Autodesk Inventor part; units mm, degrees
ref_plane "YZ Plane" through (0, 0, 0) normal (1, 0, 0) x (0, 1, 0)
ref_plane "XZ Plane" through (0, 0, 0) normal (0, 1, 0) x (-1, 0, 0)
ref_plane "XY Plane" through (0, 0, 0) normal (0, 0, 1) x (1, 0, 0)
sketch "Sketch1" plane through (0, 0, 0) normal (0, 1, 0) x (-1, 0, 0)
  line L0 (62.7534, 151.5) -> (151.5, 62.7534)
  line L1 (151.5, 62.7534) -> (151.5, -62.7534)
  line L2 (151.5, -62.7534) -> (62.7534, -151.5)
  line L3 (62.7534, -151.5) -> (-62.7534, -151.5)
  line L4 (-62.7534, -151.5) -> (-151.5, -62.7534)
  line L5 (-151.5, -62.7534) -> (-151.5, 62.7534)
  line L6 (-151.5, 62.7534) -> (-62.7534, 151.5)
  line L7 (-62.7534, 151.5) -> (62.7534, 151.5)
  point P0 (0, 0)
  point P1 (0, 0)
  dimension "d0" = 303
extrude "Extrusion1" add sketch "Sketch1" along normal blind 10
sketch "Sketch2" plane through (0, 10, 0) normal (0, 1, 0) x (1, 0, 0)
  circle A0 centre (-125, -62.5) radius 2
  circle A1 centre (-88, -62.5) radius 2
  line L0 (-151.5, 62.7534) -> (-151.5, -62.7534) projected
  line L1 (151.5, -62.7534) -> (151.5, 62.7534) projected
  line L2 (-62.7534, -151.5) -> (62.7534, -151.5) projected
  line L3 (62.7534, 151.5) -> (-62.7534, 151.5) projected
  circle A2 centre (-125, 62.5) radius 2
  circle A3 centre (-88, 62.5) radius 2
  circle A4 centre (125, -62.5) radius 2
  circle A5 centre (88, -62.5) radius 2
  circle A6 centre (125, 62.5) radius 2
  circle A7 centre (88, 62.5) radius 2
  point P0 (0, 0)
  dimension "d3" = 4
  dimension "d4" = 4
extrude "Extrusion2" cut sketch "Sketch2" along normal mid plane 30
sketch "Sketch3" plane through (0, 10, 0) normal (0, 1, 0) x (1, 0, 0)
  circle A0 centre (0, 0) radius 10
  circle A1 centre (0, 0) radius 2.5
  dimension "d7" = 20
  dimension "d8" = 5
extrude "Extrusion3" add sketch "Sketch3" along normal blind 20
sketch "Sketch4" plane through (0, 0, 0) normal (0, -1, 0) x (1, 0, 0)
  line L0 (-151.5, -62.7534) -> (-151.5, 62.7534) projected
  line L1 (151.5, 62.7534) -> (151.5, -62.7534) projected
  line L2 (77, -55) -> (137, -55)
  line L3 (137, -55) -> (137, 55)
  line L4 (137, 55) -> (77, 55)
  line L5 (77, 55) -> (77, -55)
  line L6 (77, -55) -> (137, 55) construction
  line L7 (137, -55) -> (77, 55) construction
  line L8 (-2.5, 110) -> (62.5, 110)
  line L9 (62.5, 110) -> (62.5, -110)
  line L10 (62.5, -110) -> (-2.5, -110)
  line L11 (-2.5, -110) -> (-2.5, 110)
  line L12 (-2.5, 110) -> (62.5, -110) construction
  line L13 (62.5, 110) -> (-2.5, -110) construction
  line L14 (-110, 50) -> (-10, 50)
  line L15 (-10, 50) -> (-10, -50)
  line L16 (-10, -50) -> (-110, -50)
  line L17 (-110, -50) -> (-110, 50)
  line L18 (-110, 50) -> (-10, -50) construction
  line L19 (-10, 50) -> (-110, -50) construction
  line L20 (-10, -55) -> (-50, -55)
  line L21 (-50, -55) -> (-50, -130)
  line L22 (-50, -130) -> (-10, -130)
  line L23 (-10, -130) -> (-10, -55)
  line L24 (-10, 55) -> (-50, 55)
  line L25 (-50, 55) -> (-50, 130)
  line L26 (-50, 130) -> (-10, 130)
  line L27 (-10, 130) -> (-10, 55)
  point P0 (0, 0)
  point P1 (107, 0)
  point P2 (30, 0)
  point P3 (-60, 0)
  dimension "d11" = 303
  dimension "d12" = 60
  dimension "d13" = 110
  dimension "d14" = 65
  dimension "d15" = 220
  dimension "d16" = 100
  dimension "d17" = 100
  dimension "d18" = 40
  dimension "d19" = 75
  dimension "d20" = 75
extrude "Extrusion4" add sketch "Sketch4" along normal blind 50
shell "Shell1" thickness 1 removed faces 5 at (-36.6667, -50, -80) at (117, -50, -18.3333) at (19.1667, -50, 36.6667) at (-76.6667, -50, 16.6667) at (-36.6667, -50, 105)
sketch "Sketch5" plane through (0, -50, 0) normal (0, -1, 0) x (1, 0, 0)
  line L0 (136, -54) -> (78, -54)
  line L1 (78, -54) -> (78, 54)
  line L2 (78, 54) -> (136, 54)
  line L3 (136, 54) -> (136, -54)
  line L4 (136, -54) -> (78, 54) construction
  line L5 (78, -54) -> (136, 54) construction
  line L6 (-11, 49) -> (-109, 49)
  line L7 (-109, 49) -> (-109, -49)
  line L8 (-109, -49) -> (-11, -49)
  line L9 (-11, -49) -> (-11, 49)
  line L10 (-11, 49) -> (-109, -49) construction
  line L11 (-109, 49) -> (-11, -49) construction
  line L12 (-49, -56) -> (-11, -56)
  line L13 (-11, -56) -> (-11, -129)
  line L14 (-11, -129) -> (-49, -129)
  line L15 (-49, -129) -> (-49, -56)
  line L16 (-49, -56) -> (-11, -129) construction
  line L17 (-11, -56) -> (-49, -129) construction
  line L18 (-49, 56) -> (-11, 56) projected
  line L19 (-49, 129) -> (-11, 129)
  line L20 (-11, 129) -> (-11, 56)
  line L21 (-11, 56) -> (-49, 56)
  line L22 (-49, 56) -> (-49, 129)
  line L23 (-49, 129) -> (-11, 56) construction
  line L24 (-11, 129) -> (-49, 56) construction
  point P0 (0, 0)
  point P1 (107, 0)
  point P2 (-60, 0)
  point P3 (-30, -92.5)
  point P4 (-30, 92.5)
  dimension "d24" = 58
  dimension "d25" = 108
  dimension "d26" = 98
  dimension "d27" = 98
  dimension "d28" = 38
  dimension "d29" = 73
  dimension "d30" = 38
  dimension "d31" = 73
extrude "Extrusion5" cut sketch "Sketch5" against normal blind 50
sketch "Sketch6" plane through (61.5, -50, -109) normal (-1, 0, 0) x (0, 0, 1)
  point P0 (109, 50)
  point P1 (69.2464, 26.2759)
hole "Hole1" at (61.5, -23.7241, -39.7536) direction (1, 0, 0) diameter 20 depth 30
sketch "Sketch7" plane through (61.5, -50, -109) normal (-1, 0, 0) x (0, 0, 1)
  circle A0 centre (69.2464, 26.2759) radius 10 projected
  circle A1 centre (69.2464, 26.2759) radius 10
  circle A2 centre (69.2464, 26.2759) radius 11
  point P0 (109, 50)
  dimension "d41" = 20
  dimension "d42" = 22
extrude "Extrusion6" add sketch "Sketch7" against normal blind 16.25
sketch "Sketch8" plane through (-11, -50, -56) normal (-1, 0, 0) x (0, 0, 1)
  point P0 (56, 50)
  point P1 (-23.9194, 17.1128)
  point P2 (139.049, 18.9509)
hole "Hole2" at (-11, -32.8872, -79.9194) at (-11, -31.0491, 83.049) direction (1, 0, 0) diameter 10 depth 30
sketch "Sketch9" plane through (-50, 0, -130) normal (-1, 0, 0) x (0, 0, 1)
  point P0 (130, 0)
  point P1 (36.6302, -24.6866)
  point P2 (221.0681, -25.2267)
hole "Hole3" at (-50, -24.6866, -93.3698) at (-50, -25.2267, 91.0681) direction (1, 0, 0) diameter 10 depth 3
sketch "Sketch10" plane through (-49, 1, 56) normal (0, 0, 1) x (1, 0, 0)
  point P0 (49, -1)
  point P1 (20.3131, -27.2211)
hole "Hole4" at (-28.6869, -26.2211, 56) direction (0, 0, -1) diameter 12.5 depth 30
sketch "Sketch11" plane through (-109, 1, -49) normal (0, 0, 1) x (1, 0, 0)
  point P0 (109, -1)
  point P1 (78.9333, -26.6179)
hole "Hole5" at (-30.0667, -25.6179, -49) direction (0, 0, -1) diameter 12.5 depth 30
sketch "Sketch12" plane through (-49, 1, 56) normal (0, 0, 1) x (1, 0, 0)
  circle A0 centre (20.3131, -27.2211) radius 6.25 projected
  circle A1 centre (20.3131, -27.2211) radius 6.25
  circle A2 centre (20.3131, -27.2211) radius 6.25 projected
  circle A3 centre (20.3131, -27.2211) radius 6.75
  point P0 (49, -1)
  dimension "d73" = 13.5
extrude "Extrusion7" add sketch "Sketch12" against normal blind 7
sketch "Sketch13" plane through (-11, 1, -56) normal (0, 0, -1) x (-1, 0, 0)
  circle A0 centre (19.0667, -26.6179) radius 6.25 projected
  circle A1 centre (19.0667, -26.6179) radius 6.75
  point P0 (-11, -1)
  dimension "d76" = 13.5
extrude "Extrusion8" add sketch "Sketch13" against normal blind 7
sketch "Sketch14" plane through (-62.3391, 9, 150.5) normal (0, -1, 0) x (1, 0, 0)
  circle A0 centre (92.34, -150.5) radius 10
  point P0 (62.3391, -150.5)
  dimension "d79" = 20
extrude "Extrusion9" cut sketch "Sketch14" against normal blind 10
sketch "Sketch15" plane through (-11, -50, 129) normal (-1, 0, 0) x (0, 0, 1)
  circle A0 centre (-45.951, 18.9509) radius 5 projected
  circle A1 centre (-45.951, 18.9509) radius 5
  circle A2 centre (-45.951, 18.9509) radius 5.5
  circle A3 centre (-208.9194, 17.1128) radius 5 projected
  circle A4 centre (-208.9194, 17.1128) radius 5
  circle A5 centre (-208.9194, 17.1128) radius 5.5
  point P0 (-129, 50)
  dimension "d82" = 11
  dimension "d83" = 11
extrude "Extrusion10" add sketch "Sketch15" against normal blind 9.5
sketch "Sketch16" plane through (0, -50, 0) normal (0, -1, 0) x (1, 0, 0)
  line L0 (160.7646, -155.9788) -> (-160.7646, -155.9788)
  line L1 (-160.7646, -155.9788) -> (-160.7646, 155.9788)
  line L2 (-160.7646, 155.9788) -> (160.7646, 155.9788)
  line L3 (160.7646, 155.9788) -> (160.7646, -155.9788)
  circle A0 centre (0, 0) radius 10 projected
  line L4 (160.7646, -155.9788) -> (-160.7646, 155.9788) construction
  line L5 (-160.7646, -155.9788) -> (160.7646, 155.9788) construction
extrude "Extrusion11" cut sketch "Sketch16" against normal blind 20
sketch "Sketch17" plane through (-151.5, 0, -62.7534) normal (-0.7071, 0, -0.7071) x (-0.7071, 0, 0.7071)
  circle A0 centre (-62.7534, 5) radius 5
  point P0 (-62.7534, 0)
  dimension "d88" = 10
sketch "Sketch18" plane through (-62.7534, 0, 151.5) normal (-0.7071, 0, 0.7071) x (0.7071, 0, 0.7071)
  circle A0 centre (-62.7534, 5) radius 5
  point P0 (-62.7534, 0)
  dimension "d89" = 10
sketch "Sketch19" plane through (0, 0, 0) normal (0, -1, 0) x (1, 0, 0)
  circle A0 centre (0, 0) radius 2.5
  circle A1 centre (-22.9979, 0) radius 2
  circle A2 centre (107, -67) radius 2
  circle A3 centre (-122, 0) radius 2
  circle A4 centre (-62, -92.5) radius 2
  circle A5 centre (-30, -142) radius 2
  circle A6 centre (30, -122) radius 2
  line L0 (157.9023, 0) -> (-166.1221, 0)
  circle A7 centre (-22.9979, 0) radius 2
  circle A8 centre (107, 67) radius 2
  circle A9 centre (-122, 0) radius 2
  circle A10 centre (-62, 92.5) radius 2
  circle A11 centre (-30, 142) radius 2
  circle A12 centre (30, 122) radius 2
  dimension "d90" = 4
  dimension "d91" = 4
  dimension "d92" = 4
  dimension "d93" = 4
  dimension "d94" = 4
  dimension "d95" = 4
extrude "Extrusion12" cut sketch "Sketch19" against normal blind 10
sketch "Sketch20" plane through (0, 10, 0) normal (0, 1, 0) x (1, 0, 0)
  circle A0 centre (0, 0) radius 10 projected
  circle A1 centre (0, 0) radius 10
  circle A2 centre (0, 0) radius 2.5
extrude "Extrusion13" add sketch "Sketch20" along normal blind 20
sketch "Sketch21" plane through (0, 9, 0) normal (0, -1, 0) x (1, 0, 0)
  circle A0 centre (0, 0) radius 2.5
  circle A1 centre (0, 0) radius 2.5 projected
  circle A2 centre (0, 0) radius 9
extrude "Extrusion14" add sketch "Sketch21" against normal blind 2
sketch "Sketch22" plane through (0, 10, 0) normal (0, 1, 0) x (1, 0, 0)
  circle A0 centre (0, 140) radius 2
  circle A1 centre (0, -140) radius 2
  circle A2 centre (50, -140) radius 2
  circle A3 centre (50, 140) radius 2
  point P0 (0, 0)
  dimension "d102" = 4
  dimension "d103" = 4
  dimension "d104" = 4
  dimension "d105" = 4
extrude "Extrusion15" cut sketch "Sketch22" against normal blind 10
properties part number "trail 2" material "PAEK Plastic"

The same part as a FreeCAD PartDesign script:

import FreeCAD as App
import Part
import Sketcher

V = App.Vector
Q = App.Units.Quantity


def faces_at(feature, points):
    """Names of the faces that lie closest to the given points."""
    faces = feature.Shape.Faces
    near = lambda p: min(range(len(faces)), key=lambda i: faces[i].distToShape(Part.Vertex(*p))[0])
    return sorted({f"Face{near(p) + 1}" for p in points})


def add_polygon(sketch, points):
    """Adds a closed chain of lines whose ends are joined by coincident constraints."""
    first, n = sketch.GeometryCount, len(points)
    for a, b in zip(points, points[1:] + points[:1]):
        sketch.addGeometry(Part.LineSegment(App.Vector(*a, 0), App.Vector(*b, 0)), False)
    for i in range(n):
        sketch.addConstraint(Sketcher.Constraint("Coincident", first + i, 2, first + (i + 1) % n, 1))

doc = App.newDocument("Part")
body = doc.addObject("PartDesign::Body", "Body")

sketch1 = body.newObject("Sketcher::SketchObject", "Sketch")
sketch1.AttachmentSupport = (doc.getObject("XZ_Plane"), [""])
sketch1.MapMode = "FlatFace"
add_polygon(sketch1, [(-151.5, 62.7534), (-62.7534, 151.5), (62.7534, 151.5), (151.5, 62.7534), (151.5, -62.7534), (62.7534, -151.5), (-62.7534, -151.5), (-151.5, -62.7534)])
sketch1.addConstraint(Sketcher.Constraint("Horizontal", 1))
sketch1.addConstraint(Sketcher.Constraint("Vertical", 3))
sketch1.addConstraint(Sketcher.Constraint("Horizontal", 5))
sketch1.addConstraint(Sketcher.Constraint("Vertical", 7))
sketch1.addConstraint(Sketcher.Constraint("Symmetric", 0, 2, 4, 2, -1, 1))
sketch1.addConstraint(Sketcher.Constraint("Symmetric", 2, 2, 6, 2, -1, 1))
sketch1.addConstraint(Sketcher.Constraint("Perpendicular", 0, 2))
sketch1.addConstraint(Sketcher.Constraint("Perpendicular", 2, 4))
sketch1.addConstraint(Sketcher.Constraint("Perpendicular", 4, 6))
sketch1.addConstraint(Sketcher.Constraint("Horizontal", 3, 2, 6, 2))
sketch1.addConstraint(Sketcher.Constraint("Vertical", 1, 2, 4, 2))
sketch1.addConstraint(Sketcher.Constraint("Equal", 5, 3))
sketch1.addConstraint(Sketcher.Constraint("DistanceY", 4, 2, 1, 2, Q("303 mm")))
sketch1.addConstraint(Sketcher.Constraint("DistanceX", 1, 1, 1, 2, Q("125.5068 mm")))
pad1 = body.newObject("PartDesign::Pad", "Pad")
pad1.Profile = sketch1
pad1.Length = 10
pad1.Reversed = True

sketch2 = body.newObject("Sketcher::SketchObject", "Sketch001")
sketch2.AttachmentSupport = (doc.getObject("XZ_Plane"), [""])
sketch2.MapMode = "FlatFace"
sketch2.AttachmentOffset = App.Placement(V(0, 0, -10), App.Rotation())
sketch2.addGeometry(Part.Circle(V(-125, 62.5, 0), V(0, 0, 1), 2), False)
sketch2.addGeometry(Part.Circle(V(-88, 62.5, 0), V(0, 0, 1), 2), False)
sketch2.addGeometry(Part.Circle(V(-125, -62.5, 0), V(0, 0, 1), 2), False)
sketch2.addGeometry(Part.Circle(V(-88, -62.5, 0), V(0, 0, 1), 2), False)
sketch2.addGeometry(Part.Circle(V(125, 62.5, 0), V(0, 0, 1), 2), False)
sketch2.addGeometry(Part.Circle(V(88, 62.5, 0), V(0, 0, 1), 2), False)
sketch2.addGeometry(Part.Circle(V(125, -62.5, 0), V(0, 0, 1), 2), False)
sketch2.addGeometry(Part.Circle(V(88, -62.5, 0), V(0, 0, 1), 2), False)
sketch2.addConstraint(Sketcher.Constraint("Equal", 0, 1))
sketch2.addConstraint(Sketcher.Constraint("Equal", 1, 2))
sketch2.addConstraint(Sketcher.Constraint("Equal", 2, 3))
sketch2.addConstraint(Sketcher.Constraint("Equal", 3, 4))
sketch2.addConstraint(Sketcher.Constraint("Equal", 4, 5))
sketch2.addConstraint(Sketcher.Constraint("Equal", 5, 6))
sketch2.addConstraint(Sketcher.Constraint("Equal", 6, 7))
sketch2.addConstraint(Sketcher.Constraint("Symmetric", 2, 3, 4, 3, -1, 1))
sketch2.addConstraint(Sketcher.Constraint("Symmetric", 3, 3, 5, 3, -1, 1))
sketch2.addConstraint(Sketcher.Constraint("Symmetric", 0, 3, 6, 3, -1, 1))
sketch2.addConstraint(Sketcher.Constraint("Symmetric", 1, 3, 7, 3, -1, 1))
sketch2.addConstraint(Sketcher.Constraint("Symmetric", 0, 3, 4, 3, -2))
sketch2.addConstraint(Sketcher.Constraint("Symmetric", 1, 3, 5, 3, -2))
sketch2.addConstraint(Sketcher.Constraint("Horizontal", 0, 3, 1, 3))
sketch2.addConstraint(Sketcher.Constraint("Diameter", 0, Q("4 mm")))
sketch2.addConstraint(Sketcher.Constraint("DistanceX", 0, 3, -1, 1, Q("125 mm")))
sketch2.addConstraint(Sketcher.Constraint("DistanceX", 1, 3, -1, 1, Q("88 mm")))
sketch2.addConstraint(Sketcher.Constraint("DistanceY", 2, 3, 0, 3, Q("125 mm")))
pocket1 = body.newObject("PartDesign::Pocket", "Pocket")
pocket1.Profile = sketch2
pocket1.Length = 30
pocket1.Midplane = True

sketch3 = body.newObject("Sketcher::SketchObject", "Sketch002")
sketch3.AttachmentSupport = (doc.getObject("XZ_Plane"), [""])
sketch3.MapMode = "FlatFace"
sketch3.AttachmentOffset = App.Placement(V(0, 0, -10), App.Rotation())
sketch3.addGeometry(Part.Circle(V(0, 0, 0), V(0, 0, 1), 10), False)
sketch3.addGeometry(Part.Circle(V(0, 0, 0), V(0, 0, 1), 2.5), False)
sketch3.addConstraint(Sketcher.Constraint("Coincident", 0, 3, -1, 1))
sketch3.addConstraint(Sketcher.Constraint("Coincident", 1, 3, -1, 1))
sketch3.addConstraint(Sketcher.Constraint("Diameter", 0, Q("20 mm")))
sketch3.addConstraint(Sketcher.Constraint("Diameter", 1, Q("5 mm")))
pad2 = body.newObject("PartDesign::Pad", "Pad001")
pad2.Profile = sketch3
pad2.Length = 20
pad2.Reversed = True

sketch4 = body.newObject("Sketcher::SketchObject", "Sketch003")
sketch4.AttachmentSupport = (doc.getObject("XZ_Plane"), [""])
sketch4.MapMode = "FlatFace"
add_polygon(sketch4, [(77, 55), (77, -55), (137, -55), (137, 55)])
add_polygon(sketch4, [(62.5, 110), (-2.5, 110), (-2.5, -110), (62.5, -110)])
add_polygon(sketch4, [(-10, 50), (-110, 50), (-110, -50), (-10, -50)])
add_polygon(sketch4, [(-10, -130), (-10, -55), (-50, -55), (-50, -130)])
add_polygon(sketch4, [(-50, 55), (-10, 55), (-10, 130), (-50, 130)])
sketch4.addConstraint(Sketcher.Constraint("Vertical", 0))
sketch4.addConstraint(Sketcher.Constraint("Horizontal", 1))
sketch4.addConstraint(Sketcher.Constraint("Vertical", 2))
sketch4.addConstraint(Sketcher.Constraint("Horizontal", 3))
sketch4.addConstraint(Sketcher.Constraint("Horizontal", 4))
sketch4.addConstraint(Sketcher.Constraint("Vertical", 5))
sketch4.addConstraint(Sketcher.Constraint("Horizontal", 6))
sketch4.addConstraint(Sketcher.Constraint("Vertical", 7))
sketch4.addConstraint(Sketcher.Constraint("Horizontal", 8))
sketch4.addConstraint(Sketcher.Constraint("Vertical", 9))
sketch4.addConstraint(Sketcher.Constraint("Horizontal", 10))
sketch4.addConstraint(Sketcher.Constraint("Vertical", 11))
sketch4.addConstraint(Sketcher.Constraint("Vertical", 12))
sketch4.addConstraint(Sketcher.Constraint("Horizontal", 13))
sketch4.addConstraint(Sketcher.Constraint("Vertical", 14))
sketch4.addConstraint(Sketcher.Constraint("Horizontal", 15))
sketch4.addConstraint(Sketcher.Constraint("Horizontal", 16))
sketch4.addConstraint(Sketcher.Constraint("Vertical", 17))
sketch4.addConstraint(Sketcher.Constraint("Horizontal", 18))
sketch4.addConstraint(Sketcher.Constraint("Vertical", 19))
sketch4.addConstraint(Sketcher.Constraint("Symmetric", 12, 2, 16, 2, -1))
sketch4.addConstraint(Sketcher.Constraint("Symmetric", 14, 2, 18, 2, -1))
sketch4.addConstraint(Sketcher.Constraint("Horizontal", 1, 2, 12, 2))
sketch4.addConstraint(Sketcher.Constraint("Horizontal", 3, 2, 16, 2))
sketch4.addConstraint(Sketcher.Constraint("Vertical", 11, 2, 12, 2))
sketch4.addConstraint(Sketcher.Constraint("Equal", 10, 9))
sketch4.addConstraint(Sketcher.Constraint("DistanceX", 1, 1, 1, 2, Q("60 mm")))
sketch4.addConstraint(Sketcher.Constraint("DistanceX", 4, 2, 4, 1, Q("65 mm")))
sketch4.addConstraint(Sketcher.Constraint("DistanceX", 8, 2, 8, 1, Q("100 mm")))
sketch4.addConstraint(Sketcher.Constraint("DistanceX", 13, 2, 13, 1, Q("40 mm")))
sketch4.addConstraint(Sketcher.Constraint("DistanceY", 0, 2, 0, 1, Q("110 mm")))
sketch4.addConstraint(Sketcher.Constraint("DistanceY", 5, 2, 5, 1, Q("220 mm")))
sketch4.addConstraint(Sketcher.Constraint("DistanceY", 12, 1, 12, 2, Q("75 mm")))
sketch4.addConstraint(Sketcher.Constraint("DistanceY", -1, 1, 4, 2, Q("110 mm")))
sketch4.addConstraint(Sketcher.Constraint("DistanceX", 8, 2, -1, 1, Q("110 mm")))
sketch4.addConstraint(Sketcher.Constraint("DistanceY", 8, 2, 4, 2, Q("60 mm")))
sketch4.addConstraint(Sketcher.Constraint("DistanceX", -1, 1, 0, 2, Q("77 mm")))
sketch4.addConstraint(Sketcher.Constraint("DistanceX", 4, 2, -1, 1, Q("2.5 mm")))
pad3 = body.newObject("PartDesign::Pad", "Pad002")
pad3.Profile = sketch4
pad3.Length = 50
doc.recompute()

thickness = body.newObject("PartDesign::Thickness", "Thickness")
thickness.Base = (pad3, faces_at(pad3, [
    (-36.667, -50, -80),
    (117, -50, -18.333),
    (19.167, -50, 36.667),
    (-76.667, -50, 16.667),
    (-36.667, -50, 105),
]))
thickness.Value = 1
thickness.Reversed = True
thickness.Join = "Intersection"

sketch5 = body.newObject("Sketcher::SketchObject", "Sketch004")
sketch5.AttachmentSupport = (doc.getObject("XZ_Plane"), [""])
sketch5.MapMode = "FlatFace"
sketch5.AttachmentOffset = App.Placement(V(0, 0, 50), App.Rotation())
add_polygon(sketch5, [(78, -54), (136, -54), (136, 54), (78, 54)])
add_polygon(sketch5, [(-11, -49), (-11, 49), (-109, 49), (-109, -49)])
add_polygon(sketch5, [(-11, -56), (-49, -56), (-49, -129), (-11, -129)])
add_polygon(sketch5, [(-49, 129), (-49, 56), (-11, 56), (-11, 129)])
sketch5.addConstraint(Sketcher.Constraint("Horizontal", 0))
sketch5.addConstraint(Sketcher.Constraint("Vertical", 1))
sketch5.addConstraint(Sketcher.Constraint("Horizontal", 2))
sketch5.addConstraint(Sketcher.Constraint("Vertical", 3))
sketch5.addConstraint(Sketcher.Constraint("Vertical", 4))
sketch5.addConstraint(Sketcher.Constraint("Horizontal", 5))
sketch5.addConstraint(Sketcher.Constraint("Vertical", 6))
sketch5.addConstraint(Sketcher.Constraint("Horizontal", 7))
sketch5.addConstraint(Sketcher.Constraint("Horizontal", 8))
sketch5.addConstraint(Sketcher.Constraint("Vertical", 9))
sketch5.addConstraint(Sketcher.Constraint("Horizontal", 10))
sketch5.addConstraint(Sketcher.Constraint("Vertical", 11))
sketch5.addConstraint(Sketcher.Constraint("Vertical", 12))
sketch5.addConstraint(Sketcher.Constraint("Horizontal", 13))
sketch5.addConstraint(Sketcher.Constraint("Vertical", 14))
sketch5.addConstraint(Sketcher.Constraint("Horizontal", 15))
sketch5.addConstraint(Sketcher.Constraint("Symmetric", 8, 2, 12, 2, -1))
sketch5.addConstraint(Sketcher.Constraint("Symmetric", 10, 2, 14, 2, -1))
sketch5.addConstraint(Sketcher.Constraint("Vertical", 7, 2, 10, 2))
sketch5.addConstraint(Sketcher.Constraint("Equal", 7, 4))
sketch5.addConstraint(Sketcher.Constraint("DistanceX", 0, 1, 0, 2, Q("58 mm")))
sketch5.addConstraint(Sketcher.Constraint("DistanceX", 5, 2, 5, 1, Q("98 mm")))
sketch5.addConstraint(Sketcher.Constraint("DistanceX", 8, 2, 8, 1, Q("38 mm")))
sketch5.addConstraint(Sketcher.Constraint("DistanceY", 1, 1, 1, 2, Q("108 mm")))
sketch5.addConstraint(Sketcher.Constraint("DistanceY", 9, 2, 9, 1, Q("73 mm")))
sketch5.addConstraint(Sketcher.Constraint("DistanceX", -1, 1, 0, 2, Q("136 mm")))
sketch5.addConstraint(Sketcher.Constraint("DistanceY", 0, 2, -1, 1, Q("54 mm")))
sketch5.addConstraint(Sketcher.Constraint("DistanceX", 4, 2, -1, 1, Q("11 mm")))
sketch5.addConstraint(Sketcher.Constraint("DistanceY", -1, 1, 4, 2, Q("49 mm")))
sketch5.addConstraint(Sketcher.Constraint("DistanceY", 8, 2, -1, 1, Q("56 mm")))
pocket2 = body.newObject("PartDesign::Pocket", "Pocket001")
pocket2.Profile = sketch5
pocket2.Length = 50

sketch6 = body.newObject("Sketcher::SketchObject", "Sketch005")
sketch6.AttachmentSupport = (doc.getObject("YZ_Plane"), [""])
sketch6.MapMode = "FlatFace"
sketch6.AttachmentOffset = App.Placement(V(0, 0, 61.5), App.Rotation())
sketch6.addGeometry(Part.Circle(V(-23.7241, -39.7536, 0), V(0, 0, 1), 10), False)
sketch6.addConstraint(Sketcher.Constraint("Diameter", 0, Q("20 mm")))
sketch6.addConstraint(Sketcher.Constraint("DistanceX", 0, 3, -1, 1, Q("23.724 mm")))
sketch6.addConstraint(Sketcher.Constraint("DistanceY", 0, 3, -1, 1, Q("39.7536 mm")))
doc.recompute()
hole = body.newObject("PartDesign::Hole", "Hole")
hole.Profile = sketch6
hole.ThreadType = "None"
hole.Diameter = 20
hole.DepthType = "Dimension"
hole.Depth = 30
hole.DrillPoint = "Flat"
hole.Reversed = True

sketch7 = body.newObject("Sketcher::SketchObject", "Sketch006")
sketch7.AttachmentSupport = (doc.getObject("YZ_Plane"), [""])
sketch7.MapMode = "FlatFace"
sketch7.AttachmentOffset = App.Placement(V(0, 0, 61.5), App.Rotation())
sketch7.addGeometry(Part.Circle(V(-23.7241, -39.7536, 0), V(0, 0, 1), 11), False)
sketch7.addGeometry(Part.Circle(V(-23.7241, -39.7536, 0), V(0, 0, 1), 10), False)
sketch7.addConstraint(Sketcher.Constraint("Coincident", 1, 3, 0, 3))
sketch7.addConstraint(Sketcher.Constraint("Diameter", 0, Q("22 mm")))
sketch7.addConstraint(Sketcher.Constraint("Diameter", 1, Q("20 mm")))
sketch7.addConstraint(Sketcher.Constraint("DistanceX", 0, 3, -1, 1, Q("23.724 mm")))
sketch7.addConstraint(Sketcher.Constraint("DistanceY", 0, 3, -1, 1, Q("39.7536 mm")))
pad4 = body.newObject("PartDesign::Pad", "Pad003")
pad4.Profile = sketch7
pad4.Length = 16.25

sketch8 = body.newObject("Sketcher::SketchObject", "Sketch007")
sketch8.AttachmentSupport = (doc.getObject("YZ_Plane"), [""])
sketch8.MapMode = "FlatFace"
sketch8.AttachmentOffset = App.Placement(V(0, 0, -11), App.Rotation())
sketch8.addGeometry(Part.Circle(V(-32.8872, -79.9194, 0), V(0, 0, 1), 5), False)
sketch8.addGeometry(Part.Circle(V(-31.0491, 83.049, 0), V(0, 0, 1), 5), False)
sketch8.addConstraint(Sketcher.Constraint("Equal", 0, 1))
sketch8.addConstraint(Sketcher.Constraint("Diameter", 0, Q("10 mm")))
sketch8.addConstraint(Sketcher.Constraint("DistanceX", 1, 3, -1, 1, Q("31.049 mm")))
sketch8.addConstraint(Sketcher.Constraint("DistanceY", -1, 1, 1, 3, Q("83.049 mm")))
sketch8.addConstraint(Sketcher.Constraint("DistanceX", 0, 3, 1, 3, Q("1.838 mm")))
sketch8.addConstraint(Sketcher.Constraint("DistanceY", 0, 3, -1, 1, Q("79.9194 mm")))
doc.recompute()
hole2 = body.newObject("PartDesign::Hole", "Hole001")
hole2.Profile = sketch8
hole2.ThreadType = "None"
hole2.Diameter = 10
hole2.DepthType = "Dimension"
hole2.Depth = 30
hole2.DrillPoint = "Flat"
hole2.Reversed = True

sketch9 = body.newObject("Sketcher::SketchObject", "Sketch008")
sketch9.AttachmentSupport = (doc.getObject("YZ_Plane"), [""])
sketch9.MapMode = "FlatFace"
sketch9.AttachmentOffset = App.Placement(V(0, 0, -50), App.Rotation())
sketch9.addGeometry(Part.Circle(V(-24.6866, -93.3698, 0), V(0, 0, 1), 5), False)
sketch9.addGeometry(Part.Circle(V(-25.2267, 91.0681, 0), V(0, 0, 1), 5), False)
sketch9.addConstraint(Sketcher.Constraint("Equal", 0, 1))
sketch9.addConstraint(Sketcher.Constraint("Diameter", 0, Q("10 mm")))
sketch9.addConstraint(Sketcher.Constraint("DistanceX", 1, 3, 0, 3, Q("0.54 mm")))
sketch9.addConstraint(Sketcher.Constraint("DistanceY", -1, 1, 1, 3, Q("91.068 mm")))
sketch9.addConstraint(Sketcher.Constraint("DistanceY", 0, 3, 1, 3, Q("184.438 mm")))
sketch9.addConstraint(Sketcher.Constraint("DistanceX", 0, 3, -1, 1, Q("24.6866 mm")))
doc.recompute()
hole3 = body.newObject("PartDesign::Hole", "Hole002")
hole3.Profile = sketch9
hole3.ThreadType = "None"
hole3.Diameter = 10
hole3.DepthType = "Dimension"
hole3.Depth = 3
hole3.DrillPoint = "Flat"
hole3.Reversed = True

sketch10 = body.newObject("Sketcher::SketchObject", "Sketch009")
sketch10.AttachmentSupport = (doc.getObject("XY_Plane"), [""])
sketch10.MapMode = "FlatFace"
sketch10.AttachmentOffset = App.Placement(V(0, 0, 56), App.Rotation())
sketch10.addGeometry(Part.Circle(V(-28.6869, -26.2211, 0), V(0, 0, 1), 6.25), False)
sketch10.addConstraint(Sketcher.Constraint("Diameter", 0, Q("12.5 mm")))
sketch10.addConstraint(Sketcher.Constraint("DistanceX", 0, 3, -1, 1, Q("28.687 mm")))
sketch10.addConstraint(Sketcher.Constraint("DistanceY", 0, 3, -1, 1, Q("26.221 mm")))
doc.recompute()
hole4 = body.newObject("PartDesign::Hole", "Hole003")
hole4.Profile = sketch10
hole4.ThreadType = "None"
hole4.Diameter = 12.5
hole4.DepthType = "Dimension"
hole4.Depth = 30
hole4.DrillPoint = "Flat"

sketch11 = body.newObject("Sketcher::SketchObject", "Sketch010")
sketch11.AttachmentSupport = (doc.getObject("XY_Plane"), [""])
sketch11.MapMode = "FlatFace"
sketch11.AttachmentOffset = App.Placement(V(0, 0, -49), App.Rotation())
sketch11.addGeometry(Part.Circle(V(-30.0667, -25.6179, 0), V(0, 0, 1), 6.25), False)
sketch11.addConstraint(Sketcher.Constraint("Diameter", 0, Q("12.5 mm")))
sketch11.addConstraint(Sketcher.Constraint("DistanceY", 0, 3, -1, 1, Q("25.618 mm")))
sketch11.addConstraint(Sketcher.Constraint("DistanceX", 0, 3, -1, 1, Q("30.0667 mm")))
doc.recompute()
hole5 = body.newObject("PartDesign::Hole", "Hole004")
hole5.Profile = sketch11
hole5.ThreadType = "None"
hole5.Diameter = 12.5
hole5.DepthType = "Dimension"
hole5.Depth = 30
hole5.DrillPoint = "Flat"

sketch12 = body.newObject("Sketcher::SketchObject", "Sketch011")
sketch12.AttachmentSupport = (doc.getObject("XY_Plane"), [""])
sketch12.MapMode = "FlatFace"
sketch12.AttachmentOffset = App.Placement(V(0, 0, 56), App.Rotation())
sketch12.addGeometry(Part.Circle(V(-28.6869, -26.2211, 0), V(0, 0, 1), 6.75), False)
sketch12.addGeometry(Part.Circle(V(-28.6869, -26.2211, 0), V(0, 0, 1), 6.25), False)
sketch12.addConstraint(Sketcher.Constraint("Coincident", 1, 3, 0, 3))
sketch12.addConstraint(Sketcher.Constraint("Diameter", 0, Q("13.5 mm")))
sketch12.addConstraint(Sketcher.Constraint("Diameter", 1, Q("12.5 mm")))
sketch12.addConstraint(Sketcher.Constraint("DistanceX", 0, 3, -1, 1, Q("28.687 mm")))
sketch12.addConstraint(Sketcher.Constraint("DistanceY", 0, 3, -1, 1, Q("26.221 mm")))
pad5 = body.newObject("PartDesign::Pad", "Pad004")
pad5.Profile = sketch12
pad5.Length = 7
pad5.Reversed = True

sketch13 = body.newObject("Sketcher::SketchObject", "Sketch012")
sketch13.AttachmentSupport = (doc.getObject("XY_Plane"), [""])
sketch13.MapMode = "FlatFace"
sketch13.AttachmentOffset = App.Placement(V(0, 0, -56), App.Rotation())
sketch13.addGeometry(Part.Circle(V(-30.0667, -25.6179, 0), V(0, 0, 1), 6.75), False)
sketch13.addGeometry(Part.Circle(V(-30.0667, -25.6179, 0), V(0, 0, 1), 6.25), False)
sketch13.addConstraint(Sketcher.Constraint("Coincident", 1, 3, 0, 3))
sketch13.addConstraint(Sketcher.Constraint("Diameter", 0, Q("13.5 mm")))
sketch13.addConstraint(Sketcher.Constraint("Diameter", 1, Q("12.5 mm")))
sketch13.addConstraint(Sketcher.Constraint("DistanceY", 0, 3, -1, 1, Q("25.618 mm")))
sketch13.addConstraint(Sketcher.Constraint("DistanceX", 0, 3, -1, 1, Q("30.0667 mm")))
pad6 = body.newObject("PartDesign::Pad", "Pad005")
pad6.Profile = sketch13
pad6.Length = 7

sketch14 = body.newObject("Sketcher::SketchObject", "Sketch013")
sketch14.AttachmentSupport = (doc.getObject("XZ_Plane"), [""])
sketch14.MapMode = "FlatFace"
sketch14.AttachmentOffset = App.Placement(V(0, 0, -9), App.Rotation())
sketch14.addGeometry(Part.Circle(V(30.0009, 0, 0), V(0, 0, 1), 10), False)
sketch14.addConstraint(Sketcher.Constraint("PointOnObject", 0, 3, -1))
sketch14.addConstraint(Sketcher.Constraint("Diameter", 0, Q("20 mm")))
sketch14.addConstraint(Sketcher.Constraint("DistanceX", -1, 1, 0, 3, Q("30.001 mm")))
pocket3 = body.newObject("PartDesign::Pocket", "Pocket002")
pocket3.Profile = sketch14
pocket3.Length = 10

sketch15 = body.newObject("Sketcher::SketchObject", "Sketch014")
sketch15.AttachmentSupport = (doc.getObject("YZ_Plane"), [""])
sketch15.MapMode = "FlatFace"
sketch15.AttachmentOffset = App.Placement(V(0, 0, -11), App.Rotation())
sketch15.addGeometry(Part.Circle(V(-31.0491, 83.049, 0), V(0, 0, 1), 5.5), False)
sketch15.addGeometry(Part.Circle(V(-31.0491, 83.049, 0), V(0, 0, 1), 5), False)
sketch15.addGeometry(Part.Circle(V(-32.8872, -79.9194, 0), V(0, 0, 1), 5.5), False)
sketch15.addGeometry(Part.Circle(V(-32.8872, -79.9194, 0), V(0, 0, 1), 5), False)
sketch15.addConstraint(Sketcher.Constraint("Coincident", 1, 3, 0, 3))
sketch15.addConstraint(Sketcher.Constraint("Coincident", 3, 3, 2, 3))
sketch15.addConstraint(Sketcher.Constraint("Equal", 0, 2))
sketch15.addConstraint(Sketcher.Constraint("Equal", 1, 3))
sketch15.addConstraint(Sketcher.Constraint("Diameter", 0, Q("11 mm")))
sketch15.addConstraint(Sketcher.Constraint("Diameter", 1, Q("10 mm")))
sketch15.addConstraint(Sketcher.Constraint("DistanceX", 0, 3, -1, 1, Q("31.049 mm")))
sketch15.addConstraint(Sketcher.Constraint("DistanceY", -1, 1, 0, 3, Q("83.049 mm")))
sketch15.addConstraint(Sketcher.Constraint("DistanceX", 2, 3, 0, 3, Q("1.838 mm")))
sketch15.addConstraint(Sketcher.Constraint("DistanceY", 2, 3, -1, 1, Q("79.9194 mm")))
pad7 = body.newObject("PartDesign::Pad", "Pad006")
pad7.Profile = sketch15
pad7.Length = 9.5

sketch16 = body.newObject("Sketcher::SketchObject", "Sketch015")
sketch16.AttachmentSupport = (doc.getObject("XZ_Plane"), [""])
sketch16.MapMode = "FlatFace"
sketch16.AttachmentOffset = App.Placement(V(0, 0, 50), App.Rotation())
add_polygon(sketch16, [(-160.7646, -155.9788), (160.7646, -155.9788), (160.7646, 155.9788), (-160.7646, 155.9788)])
sketch16.addGeometry(Part.Circle(V(0, 0, 0), V(0, 0, 1), 10), False)
sketch16.addConstraint(Sketcher.Constraint("Horizontal", 0))
sketch16.addConstraint(Sketcher.Constraint("Vertical", 1))
sketch16.addConstraint(Sketcher.Constraint("Horizontal", 2))
sketch16.addConstraint(Sketcher.Constraint("Vertical", 3))
sketch16.addConstraint(Sketcher.Constraint("Coincident", 4, 3, -1, 1))
sketch16.addConstraint(Sketcher.Constraint("Symmetric", 0, 2, 2, 2, -1, 1))
sketch16.addConstraint(Sketcher.Constraint("Diameter", 4, Q("20 mm")))
sketch16.addConstraint(Sketcher.Constraint("DistanceX", 0, 1, 0, 2, Q("321.5292 mm")))
sketch16.addConstraint(Sketcher.Constraint("DistanceY", 1, 1, 1, 2, Q("311.9576 mm")))
pocket4 = body.newObject("PartDesign::Pocket", "Pocket003")
pocket4.Profile = sketch16
pocket4.Length = 20

sketch17 = body.newObject("Sketcher::SketchObject", "Sketch016")
sketch17.AttachmentSupport = (doc.getObject("XZ_Plane"), [""])
sketch17.MapMode = "FlatFace"
sketch17.addGeometry(Part.Circle(V(0, 0, 0), V(0, 0, 1), 2.5), False)
sketch17.addGeometry(Part.Circle(V(-122, 0, 0), V(0, 0, 1), 2), False)
sketch17.addGeometry(Part.Circle(V(-22.9979, 0, 0), V(0, 0, 1), 2), False)
sketch17.addGeometry(Part.Circle(V(107, -67, 0), V(0, 0, 1), 2), False)
sketch17.addGeometry(Part.Circle(V(-62, -92.5, 0), V(0, 0, 1), 2), False)
sketch17.addGeometry(Part.Circle(V(-30, -142, 0), V(0, 0, 1), 2), False)
sketch17.addGeometry(Part.Circle(V(30, -122, 0), V(0, 0, 1), 2), False)
sketch17.addGeometry(Part.Circle(V(107, 67, 0), V(0, 0, 1), 2), False)
sketch17.addGeometry(Part.Circle(V(-62, 92.5, 0), V(0, 0, 1), 2), False)
sketch17.addGeometry(Part.Circle(V(-30, 142, 0), V(0, 0, 1), 2), False)
sketch17.addGeometry(Part.Circle(V(30, 122, 0), V(0, 0, 1), 2), False)
sketch17.addConstraint(Sketcher.Constraint("Coincident", 0, 3, -1, 1))
sketch17.addConstraint(Sketcher.Constraint("Equal", 1, 2))
sketch17.addConstraint(Sketcher.Constraint("Equal", 2, 3))
sketch17.addConstraint(Sketcher.Constraint("Equal", 3, 4))
sketch17.addConstraint(Sketcher.Constraint("Equal", 4, 5))
sketch17.addConstraint(Sketcher.Constraint("Equal", 5, 6))
sketch17.addConstraint(Sketcher.Constraint("Equal", 6, 7))
sketch17.addConstraint(Sketcher.Constraint("Equal", 7, 8))
sketch17.addConstraint(Sketcher.Constraint("Equal", 8, 9))
sketch17.addConstraint(Sketcher.Constraint("Equal", 9, 10))
sketch17.addConstraint(Sketcher.Constraint("Symmetric", 3, 3, 7, 3, -1))
sketch17.addConstraint(Sketcher.Constraint("Symmetric", 4, 3, 8, 3, -1))
sketch17.addConstraint(Sketcher.Constraint("Symmetric", 5, 3, 9, 3, -1))
sketch17.addConstraint(Sketcher.Constraint("Symmetric", 6, 3, 10, 3, -1))
sketch17.addConstraint(Sketcher.Constraint("PointOnObject", 1, 3, -1))
sketch17.addConstraint(Sketcher.Constraint("PointOnObject", 2, 3, -1))
sketch17.addConstraint(Sketcher.Constraint("Diameter", 1, Q("4 mm")))
sketch17.addConstraint(Sketcher.Constraint("Diameter", 0, Q("5 mm")))
sketch17.addConstraint(Sketcher.Constraint("DistanceX", 1, 3, -1, 1, Q("122 mm")))
sketch17.addConstraint(Sketcher.Constraint("DistanceX", -1, 1, 3, 3, Q("107 mm")))
sketch17.addConstraint(Sketcher.Constraint("DistanceY", 3, 3, -1, 1, Q("67 mm")))
sketch17.addConstraint(Sketcher.Constraint("DistanceX", 4, 3, -1, 1, Q("62 mm")))
sketch17.addConstraint(Sketcher.Constraint("DistanceX", 5, 3, -1, 1, Q("30 mm")))
sketch17.addConstraint(Sketcher.Constraint("DistanceY", 5, 3, -1, 1, Q("142 mm")))
sketch17.addConstraint(Sketcher.Constraint("DistanceX", -1, 1, 6, 3, Q("30 mm")))
sketch17.addConstraint(Sketcher.Constraint("DistanceY", 6, 3, -1, 1, Q("122 mm")))
sketch17.addConstraint(Sketcher.Constraint("DistanceY", 4, 3, 8, 3, Q("185 mm")))
sketch17.addConstraint(Sketcher.Constraint("DistanceX", 2, 3, -1, 1, Q("22.998 mm")))
pocket5 = body.newObject("PartDesign::Pocket", "Pocket004")
pocket5.Profile = sketch17
pocket5.Length = 10

sketch18 = body.newObject("Sketcher::SketchObject", "Sketch017")
sketch18.AttachmentSupport = (doc.getObject("XZ_Plane"), [""])
sketch18.MapMode = "FlatFace"
sketch18.AttachmentOffset = App.Placement(V(0, 0, -10), App.Rotation())
sketch18.addGeometry(Part.Circle(V(0, 0, 0), V(0, 0, 1), 10), False)
sketch18.addGeometry(Part.Circle(V(0, 0, 0), V(0, 0, 1), 2.5), False)
sketch18.addConstraint(Sketcher.Constraint("Coincident", 0, 3, -1, 1))
sketch18.addConstraint(Sketcher.Constraint("Coincident", 1, 3, -1, 1))
sketch18.addConstraint(Sketcher.Constraint("Diameter", 0, Q("20 mm")))
sketch18.addConstraint(Sketcher.Constraint("Diameter", 1, Q("5 mm")))
pad8 = body.newObject("PartDesign::Pad", "Pad007")
pad8.Profile = sketch18
pad8.Length = 20
pad8.Reversed = True

sketch19 = body.newObject("Sketcher::SketchObject", "Sketch018")
sketch19.AttachmentSupport = (doc.getObject("XZ_Plane"), [""])
sketch19.MapMode = "FlatFace"
sketch19.AttachmentOffset = App.Placement(V(0, 0, -9), App.Rotation())
sketch19.addGeometry(Part.Circle(V(0, 0, 0), V(0, 0, 1), 9), False)
sketch19.addGeometry(Part.Circle(V(0, 0, 0), V(0, 0, 1), 2.5), False)
sketch19.addConstraint(Sketcher.Constraint("Coincident", 0, 3, -1, 1))
sketch19.addConstraint(Sketcher.Constraint("Coincident", 1, 3, -1, 1))
sketch19.addConstraint(Sketcher.Constraint("Diameter", 0, Q("18 mm")))
sketch19.addConstraint(Sketcher.Constraint("Diameter", 1, Q("5 mm")))
pad9 = body.newObject("PartDesign::Pad", "Pad008")
pad9.Profile = sketch19
pad9.Length = 2
pad9.Reversed = True

sketch20 = body.newObject("Sketcher::SketchObject", "Sketch019")
sketch20.AttachmentSupport = (doc.getObject("XZ_Plane"), [""])
sketch20.MapMode = "FlatFace"
sketch20.AttachmentOffset = App.Placement(V(0, 0, -10), App.Rotation())
sketch20.addGeometry(Part.Circle(V(0, -140, 0), V(0, 0, 1), 2), False)
sketch20.addGeometry(Part.Circle(V(0, 140, 0), V(0, 0, 1), 2), False)
sketch20.addGeometry(Part.Circle(V(50, 140, 0), V(0, 0, 1), 2), False)
sketch20.addGeometry(Part.Circle(V(50, -140, 0), V(0, 0, 1), 2), False)
sketch20.addConstraint(Sketcher.Constraint("Equal", 0, 1))
sketch20.addConstraint(Sketcher.Constraint("Equal", 1, 2))
sketch20.addConstraint(Sketcher.Constraint("Equal", 2, 3))
sketch20.addConstraint(Sketcher.Constraint("Symmetric", 0, 3, 1, 3, -1, 1))
sketch20.addConstraint(Sketcher.Constraint("Symmetric", 2, 3, 3, 3, -1))
sketch20.addConstraint(Sketcher.Constraint("PointOnObject", 0, 3, -2))
sketch20.addConstraint(Sketcher.Constraint("Horizontal", 1, 3, 2, 3))
sketch20.addConstraint(Sketcher.Constraint("Diameter", 0, Q("4 mm")))
sketch20.addConstraint(Sketcher.Constraint("DistanceY", 0, 3, -1, 1, Q("140 mm")))
sketch20.addConstraint(Sketcher.Constraint("DistanceX", -1, 1, 2, 3, Q("50 mm")))
pocket6 = body.newObject("PartDesign::Pocket", "Pocket005")
pocket6.Profile = sketch20
pocket6.Length = 10
pocket6.Reversed = True

doc.recompute()
